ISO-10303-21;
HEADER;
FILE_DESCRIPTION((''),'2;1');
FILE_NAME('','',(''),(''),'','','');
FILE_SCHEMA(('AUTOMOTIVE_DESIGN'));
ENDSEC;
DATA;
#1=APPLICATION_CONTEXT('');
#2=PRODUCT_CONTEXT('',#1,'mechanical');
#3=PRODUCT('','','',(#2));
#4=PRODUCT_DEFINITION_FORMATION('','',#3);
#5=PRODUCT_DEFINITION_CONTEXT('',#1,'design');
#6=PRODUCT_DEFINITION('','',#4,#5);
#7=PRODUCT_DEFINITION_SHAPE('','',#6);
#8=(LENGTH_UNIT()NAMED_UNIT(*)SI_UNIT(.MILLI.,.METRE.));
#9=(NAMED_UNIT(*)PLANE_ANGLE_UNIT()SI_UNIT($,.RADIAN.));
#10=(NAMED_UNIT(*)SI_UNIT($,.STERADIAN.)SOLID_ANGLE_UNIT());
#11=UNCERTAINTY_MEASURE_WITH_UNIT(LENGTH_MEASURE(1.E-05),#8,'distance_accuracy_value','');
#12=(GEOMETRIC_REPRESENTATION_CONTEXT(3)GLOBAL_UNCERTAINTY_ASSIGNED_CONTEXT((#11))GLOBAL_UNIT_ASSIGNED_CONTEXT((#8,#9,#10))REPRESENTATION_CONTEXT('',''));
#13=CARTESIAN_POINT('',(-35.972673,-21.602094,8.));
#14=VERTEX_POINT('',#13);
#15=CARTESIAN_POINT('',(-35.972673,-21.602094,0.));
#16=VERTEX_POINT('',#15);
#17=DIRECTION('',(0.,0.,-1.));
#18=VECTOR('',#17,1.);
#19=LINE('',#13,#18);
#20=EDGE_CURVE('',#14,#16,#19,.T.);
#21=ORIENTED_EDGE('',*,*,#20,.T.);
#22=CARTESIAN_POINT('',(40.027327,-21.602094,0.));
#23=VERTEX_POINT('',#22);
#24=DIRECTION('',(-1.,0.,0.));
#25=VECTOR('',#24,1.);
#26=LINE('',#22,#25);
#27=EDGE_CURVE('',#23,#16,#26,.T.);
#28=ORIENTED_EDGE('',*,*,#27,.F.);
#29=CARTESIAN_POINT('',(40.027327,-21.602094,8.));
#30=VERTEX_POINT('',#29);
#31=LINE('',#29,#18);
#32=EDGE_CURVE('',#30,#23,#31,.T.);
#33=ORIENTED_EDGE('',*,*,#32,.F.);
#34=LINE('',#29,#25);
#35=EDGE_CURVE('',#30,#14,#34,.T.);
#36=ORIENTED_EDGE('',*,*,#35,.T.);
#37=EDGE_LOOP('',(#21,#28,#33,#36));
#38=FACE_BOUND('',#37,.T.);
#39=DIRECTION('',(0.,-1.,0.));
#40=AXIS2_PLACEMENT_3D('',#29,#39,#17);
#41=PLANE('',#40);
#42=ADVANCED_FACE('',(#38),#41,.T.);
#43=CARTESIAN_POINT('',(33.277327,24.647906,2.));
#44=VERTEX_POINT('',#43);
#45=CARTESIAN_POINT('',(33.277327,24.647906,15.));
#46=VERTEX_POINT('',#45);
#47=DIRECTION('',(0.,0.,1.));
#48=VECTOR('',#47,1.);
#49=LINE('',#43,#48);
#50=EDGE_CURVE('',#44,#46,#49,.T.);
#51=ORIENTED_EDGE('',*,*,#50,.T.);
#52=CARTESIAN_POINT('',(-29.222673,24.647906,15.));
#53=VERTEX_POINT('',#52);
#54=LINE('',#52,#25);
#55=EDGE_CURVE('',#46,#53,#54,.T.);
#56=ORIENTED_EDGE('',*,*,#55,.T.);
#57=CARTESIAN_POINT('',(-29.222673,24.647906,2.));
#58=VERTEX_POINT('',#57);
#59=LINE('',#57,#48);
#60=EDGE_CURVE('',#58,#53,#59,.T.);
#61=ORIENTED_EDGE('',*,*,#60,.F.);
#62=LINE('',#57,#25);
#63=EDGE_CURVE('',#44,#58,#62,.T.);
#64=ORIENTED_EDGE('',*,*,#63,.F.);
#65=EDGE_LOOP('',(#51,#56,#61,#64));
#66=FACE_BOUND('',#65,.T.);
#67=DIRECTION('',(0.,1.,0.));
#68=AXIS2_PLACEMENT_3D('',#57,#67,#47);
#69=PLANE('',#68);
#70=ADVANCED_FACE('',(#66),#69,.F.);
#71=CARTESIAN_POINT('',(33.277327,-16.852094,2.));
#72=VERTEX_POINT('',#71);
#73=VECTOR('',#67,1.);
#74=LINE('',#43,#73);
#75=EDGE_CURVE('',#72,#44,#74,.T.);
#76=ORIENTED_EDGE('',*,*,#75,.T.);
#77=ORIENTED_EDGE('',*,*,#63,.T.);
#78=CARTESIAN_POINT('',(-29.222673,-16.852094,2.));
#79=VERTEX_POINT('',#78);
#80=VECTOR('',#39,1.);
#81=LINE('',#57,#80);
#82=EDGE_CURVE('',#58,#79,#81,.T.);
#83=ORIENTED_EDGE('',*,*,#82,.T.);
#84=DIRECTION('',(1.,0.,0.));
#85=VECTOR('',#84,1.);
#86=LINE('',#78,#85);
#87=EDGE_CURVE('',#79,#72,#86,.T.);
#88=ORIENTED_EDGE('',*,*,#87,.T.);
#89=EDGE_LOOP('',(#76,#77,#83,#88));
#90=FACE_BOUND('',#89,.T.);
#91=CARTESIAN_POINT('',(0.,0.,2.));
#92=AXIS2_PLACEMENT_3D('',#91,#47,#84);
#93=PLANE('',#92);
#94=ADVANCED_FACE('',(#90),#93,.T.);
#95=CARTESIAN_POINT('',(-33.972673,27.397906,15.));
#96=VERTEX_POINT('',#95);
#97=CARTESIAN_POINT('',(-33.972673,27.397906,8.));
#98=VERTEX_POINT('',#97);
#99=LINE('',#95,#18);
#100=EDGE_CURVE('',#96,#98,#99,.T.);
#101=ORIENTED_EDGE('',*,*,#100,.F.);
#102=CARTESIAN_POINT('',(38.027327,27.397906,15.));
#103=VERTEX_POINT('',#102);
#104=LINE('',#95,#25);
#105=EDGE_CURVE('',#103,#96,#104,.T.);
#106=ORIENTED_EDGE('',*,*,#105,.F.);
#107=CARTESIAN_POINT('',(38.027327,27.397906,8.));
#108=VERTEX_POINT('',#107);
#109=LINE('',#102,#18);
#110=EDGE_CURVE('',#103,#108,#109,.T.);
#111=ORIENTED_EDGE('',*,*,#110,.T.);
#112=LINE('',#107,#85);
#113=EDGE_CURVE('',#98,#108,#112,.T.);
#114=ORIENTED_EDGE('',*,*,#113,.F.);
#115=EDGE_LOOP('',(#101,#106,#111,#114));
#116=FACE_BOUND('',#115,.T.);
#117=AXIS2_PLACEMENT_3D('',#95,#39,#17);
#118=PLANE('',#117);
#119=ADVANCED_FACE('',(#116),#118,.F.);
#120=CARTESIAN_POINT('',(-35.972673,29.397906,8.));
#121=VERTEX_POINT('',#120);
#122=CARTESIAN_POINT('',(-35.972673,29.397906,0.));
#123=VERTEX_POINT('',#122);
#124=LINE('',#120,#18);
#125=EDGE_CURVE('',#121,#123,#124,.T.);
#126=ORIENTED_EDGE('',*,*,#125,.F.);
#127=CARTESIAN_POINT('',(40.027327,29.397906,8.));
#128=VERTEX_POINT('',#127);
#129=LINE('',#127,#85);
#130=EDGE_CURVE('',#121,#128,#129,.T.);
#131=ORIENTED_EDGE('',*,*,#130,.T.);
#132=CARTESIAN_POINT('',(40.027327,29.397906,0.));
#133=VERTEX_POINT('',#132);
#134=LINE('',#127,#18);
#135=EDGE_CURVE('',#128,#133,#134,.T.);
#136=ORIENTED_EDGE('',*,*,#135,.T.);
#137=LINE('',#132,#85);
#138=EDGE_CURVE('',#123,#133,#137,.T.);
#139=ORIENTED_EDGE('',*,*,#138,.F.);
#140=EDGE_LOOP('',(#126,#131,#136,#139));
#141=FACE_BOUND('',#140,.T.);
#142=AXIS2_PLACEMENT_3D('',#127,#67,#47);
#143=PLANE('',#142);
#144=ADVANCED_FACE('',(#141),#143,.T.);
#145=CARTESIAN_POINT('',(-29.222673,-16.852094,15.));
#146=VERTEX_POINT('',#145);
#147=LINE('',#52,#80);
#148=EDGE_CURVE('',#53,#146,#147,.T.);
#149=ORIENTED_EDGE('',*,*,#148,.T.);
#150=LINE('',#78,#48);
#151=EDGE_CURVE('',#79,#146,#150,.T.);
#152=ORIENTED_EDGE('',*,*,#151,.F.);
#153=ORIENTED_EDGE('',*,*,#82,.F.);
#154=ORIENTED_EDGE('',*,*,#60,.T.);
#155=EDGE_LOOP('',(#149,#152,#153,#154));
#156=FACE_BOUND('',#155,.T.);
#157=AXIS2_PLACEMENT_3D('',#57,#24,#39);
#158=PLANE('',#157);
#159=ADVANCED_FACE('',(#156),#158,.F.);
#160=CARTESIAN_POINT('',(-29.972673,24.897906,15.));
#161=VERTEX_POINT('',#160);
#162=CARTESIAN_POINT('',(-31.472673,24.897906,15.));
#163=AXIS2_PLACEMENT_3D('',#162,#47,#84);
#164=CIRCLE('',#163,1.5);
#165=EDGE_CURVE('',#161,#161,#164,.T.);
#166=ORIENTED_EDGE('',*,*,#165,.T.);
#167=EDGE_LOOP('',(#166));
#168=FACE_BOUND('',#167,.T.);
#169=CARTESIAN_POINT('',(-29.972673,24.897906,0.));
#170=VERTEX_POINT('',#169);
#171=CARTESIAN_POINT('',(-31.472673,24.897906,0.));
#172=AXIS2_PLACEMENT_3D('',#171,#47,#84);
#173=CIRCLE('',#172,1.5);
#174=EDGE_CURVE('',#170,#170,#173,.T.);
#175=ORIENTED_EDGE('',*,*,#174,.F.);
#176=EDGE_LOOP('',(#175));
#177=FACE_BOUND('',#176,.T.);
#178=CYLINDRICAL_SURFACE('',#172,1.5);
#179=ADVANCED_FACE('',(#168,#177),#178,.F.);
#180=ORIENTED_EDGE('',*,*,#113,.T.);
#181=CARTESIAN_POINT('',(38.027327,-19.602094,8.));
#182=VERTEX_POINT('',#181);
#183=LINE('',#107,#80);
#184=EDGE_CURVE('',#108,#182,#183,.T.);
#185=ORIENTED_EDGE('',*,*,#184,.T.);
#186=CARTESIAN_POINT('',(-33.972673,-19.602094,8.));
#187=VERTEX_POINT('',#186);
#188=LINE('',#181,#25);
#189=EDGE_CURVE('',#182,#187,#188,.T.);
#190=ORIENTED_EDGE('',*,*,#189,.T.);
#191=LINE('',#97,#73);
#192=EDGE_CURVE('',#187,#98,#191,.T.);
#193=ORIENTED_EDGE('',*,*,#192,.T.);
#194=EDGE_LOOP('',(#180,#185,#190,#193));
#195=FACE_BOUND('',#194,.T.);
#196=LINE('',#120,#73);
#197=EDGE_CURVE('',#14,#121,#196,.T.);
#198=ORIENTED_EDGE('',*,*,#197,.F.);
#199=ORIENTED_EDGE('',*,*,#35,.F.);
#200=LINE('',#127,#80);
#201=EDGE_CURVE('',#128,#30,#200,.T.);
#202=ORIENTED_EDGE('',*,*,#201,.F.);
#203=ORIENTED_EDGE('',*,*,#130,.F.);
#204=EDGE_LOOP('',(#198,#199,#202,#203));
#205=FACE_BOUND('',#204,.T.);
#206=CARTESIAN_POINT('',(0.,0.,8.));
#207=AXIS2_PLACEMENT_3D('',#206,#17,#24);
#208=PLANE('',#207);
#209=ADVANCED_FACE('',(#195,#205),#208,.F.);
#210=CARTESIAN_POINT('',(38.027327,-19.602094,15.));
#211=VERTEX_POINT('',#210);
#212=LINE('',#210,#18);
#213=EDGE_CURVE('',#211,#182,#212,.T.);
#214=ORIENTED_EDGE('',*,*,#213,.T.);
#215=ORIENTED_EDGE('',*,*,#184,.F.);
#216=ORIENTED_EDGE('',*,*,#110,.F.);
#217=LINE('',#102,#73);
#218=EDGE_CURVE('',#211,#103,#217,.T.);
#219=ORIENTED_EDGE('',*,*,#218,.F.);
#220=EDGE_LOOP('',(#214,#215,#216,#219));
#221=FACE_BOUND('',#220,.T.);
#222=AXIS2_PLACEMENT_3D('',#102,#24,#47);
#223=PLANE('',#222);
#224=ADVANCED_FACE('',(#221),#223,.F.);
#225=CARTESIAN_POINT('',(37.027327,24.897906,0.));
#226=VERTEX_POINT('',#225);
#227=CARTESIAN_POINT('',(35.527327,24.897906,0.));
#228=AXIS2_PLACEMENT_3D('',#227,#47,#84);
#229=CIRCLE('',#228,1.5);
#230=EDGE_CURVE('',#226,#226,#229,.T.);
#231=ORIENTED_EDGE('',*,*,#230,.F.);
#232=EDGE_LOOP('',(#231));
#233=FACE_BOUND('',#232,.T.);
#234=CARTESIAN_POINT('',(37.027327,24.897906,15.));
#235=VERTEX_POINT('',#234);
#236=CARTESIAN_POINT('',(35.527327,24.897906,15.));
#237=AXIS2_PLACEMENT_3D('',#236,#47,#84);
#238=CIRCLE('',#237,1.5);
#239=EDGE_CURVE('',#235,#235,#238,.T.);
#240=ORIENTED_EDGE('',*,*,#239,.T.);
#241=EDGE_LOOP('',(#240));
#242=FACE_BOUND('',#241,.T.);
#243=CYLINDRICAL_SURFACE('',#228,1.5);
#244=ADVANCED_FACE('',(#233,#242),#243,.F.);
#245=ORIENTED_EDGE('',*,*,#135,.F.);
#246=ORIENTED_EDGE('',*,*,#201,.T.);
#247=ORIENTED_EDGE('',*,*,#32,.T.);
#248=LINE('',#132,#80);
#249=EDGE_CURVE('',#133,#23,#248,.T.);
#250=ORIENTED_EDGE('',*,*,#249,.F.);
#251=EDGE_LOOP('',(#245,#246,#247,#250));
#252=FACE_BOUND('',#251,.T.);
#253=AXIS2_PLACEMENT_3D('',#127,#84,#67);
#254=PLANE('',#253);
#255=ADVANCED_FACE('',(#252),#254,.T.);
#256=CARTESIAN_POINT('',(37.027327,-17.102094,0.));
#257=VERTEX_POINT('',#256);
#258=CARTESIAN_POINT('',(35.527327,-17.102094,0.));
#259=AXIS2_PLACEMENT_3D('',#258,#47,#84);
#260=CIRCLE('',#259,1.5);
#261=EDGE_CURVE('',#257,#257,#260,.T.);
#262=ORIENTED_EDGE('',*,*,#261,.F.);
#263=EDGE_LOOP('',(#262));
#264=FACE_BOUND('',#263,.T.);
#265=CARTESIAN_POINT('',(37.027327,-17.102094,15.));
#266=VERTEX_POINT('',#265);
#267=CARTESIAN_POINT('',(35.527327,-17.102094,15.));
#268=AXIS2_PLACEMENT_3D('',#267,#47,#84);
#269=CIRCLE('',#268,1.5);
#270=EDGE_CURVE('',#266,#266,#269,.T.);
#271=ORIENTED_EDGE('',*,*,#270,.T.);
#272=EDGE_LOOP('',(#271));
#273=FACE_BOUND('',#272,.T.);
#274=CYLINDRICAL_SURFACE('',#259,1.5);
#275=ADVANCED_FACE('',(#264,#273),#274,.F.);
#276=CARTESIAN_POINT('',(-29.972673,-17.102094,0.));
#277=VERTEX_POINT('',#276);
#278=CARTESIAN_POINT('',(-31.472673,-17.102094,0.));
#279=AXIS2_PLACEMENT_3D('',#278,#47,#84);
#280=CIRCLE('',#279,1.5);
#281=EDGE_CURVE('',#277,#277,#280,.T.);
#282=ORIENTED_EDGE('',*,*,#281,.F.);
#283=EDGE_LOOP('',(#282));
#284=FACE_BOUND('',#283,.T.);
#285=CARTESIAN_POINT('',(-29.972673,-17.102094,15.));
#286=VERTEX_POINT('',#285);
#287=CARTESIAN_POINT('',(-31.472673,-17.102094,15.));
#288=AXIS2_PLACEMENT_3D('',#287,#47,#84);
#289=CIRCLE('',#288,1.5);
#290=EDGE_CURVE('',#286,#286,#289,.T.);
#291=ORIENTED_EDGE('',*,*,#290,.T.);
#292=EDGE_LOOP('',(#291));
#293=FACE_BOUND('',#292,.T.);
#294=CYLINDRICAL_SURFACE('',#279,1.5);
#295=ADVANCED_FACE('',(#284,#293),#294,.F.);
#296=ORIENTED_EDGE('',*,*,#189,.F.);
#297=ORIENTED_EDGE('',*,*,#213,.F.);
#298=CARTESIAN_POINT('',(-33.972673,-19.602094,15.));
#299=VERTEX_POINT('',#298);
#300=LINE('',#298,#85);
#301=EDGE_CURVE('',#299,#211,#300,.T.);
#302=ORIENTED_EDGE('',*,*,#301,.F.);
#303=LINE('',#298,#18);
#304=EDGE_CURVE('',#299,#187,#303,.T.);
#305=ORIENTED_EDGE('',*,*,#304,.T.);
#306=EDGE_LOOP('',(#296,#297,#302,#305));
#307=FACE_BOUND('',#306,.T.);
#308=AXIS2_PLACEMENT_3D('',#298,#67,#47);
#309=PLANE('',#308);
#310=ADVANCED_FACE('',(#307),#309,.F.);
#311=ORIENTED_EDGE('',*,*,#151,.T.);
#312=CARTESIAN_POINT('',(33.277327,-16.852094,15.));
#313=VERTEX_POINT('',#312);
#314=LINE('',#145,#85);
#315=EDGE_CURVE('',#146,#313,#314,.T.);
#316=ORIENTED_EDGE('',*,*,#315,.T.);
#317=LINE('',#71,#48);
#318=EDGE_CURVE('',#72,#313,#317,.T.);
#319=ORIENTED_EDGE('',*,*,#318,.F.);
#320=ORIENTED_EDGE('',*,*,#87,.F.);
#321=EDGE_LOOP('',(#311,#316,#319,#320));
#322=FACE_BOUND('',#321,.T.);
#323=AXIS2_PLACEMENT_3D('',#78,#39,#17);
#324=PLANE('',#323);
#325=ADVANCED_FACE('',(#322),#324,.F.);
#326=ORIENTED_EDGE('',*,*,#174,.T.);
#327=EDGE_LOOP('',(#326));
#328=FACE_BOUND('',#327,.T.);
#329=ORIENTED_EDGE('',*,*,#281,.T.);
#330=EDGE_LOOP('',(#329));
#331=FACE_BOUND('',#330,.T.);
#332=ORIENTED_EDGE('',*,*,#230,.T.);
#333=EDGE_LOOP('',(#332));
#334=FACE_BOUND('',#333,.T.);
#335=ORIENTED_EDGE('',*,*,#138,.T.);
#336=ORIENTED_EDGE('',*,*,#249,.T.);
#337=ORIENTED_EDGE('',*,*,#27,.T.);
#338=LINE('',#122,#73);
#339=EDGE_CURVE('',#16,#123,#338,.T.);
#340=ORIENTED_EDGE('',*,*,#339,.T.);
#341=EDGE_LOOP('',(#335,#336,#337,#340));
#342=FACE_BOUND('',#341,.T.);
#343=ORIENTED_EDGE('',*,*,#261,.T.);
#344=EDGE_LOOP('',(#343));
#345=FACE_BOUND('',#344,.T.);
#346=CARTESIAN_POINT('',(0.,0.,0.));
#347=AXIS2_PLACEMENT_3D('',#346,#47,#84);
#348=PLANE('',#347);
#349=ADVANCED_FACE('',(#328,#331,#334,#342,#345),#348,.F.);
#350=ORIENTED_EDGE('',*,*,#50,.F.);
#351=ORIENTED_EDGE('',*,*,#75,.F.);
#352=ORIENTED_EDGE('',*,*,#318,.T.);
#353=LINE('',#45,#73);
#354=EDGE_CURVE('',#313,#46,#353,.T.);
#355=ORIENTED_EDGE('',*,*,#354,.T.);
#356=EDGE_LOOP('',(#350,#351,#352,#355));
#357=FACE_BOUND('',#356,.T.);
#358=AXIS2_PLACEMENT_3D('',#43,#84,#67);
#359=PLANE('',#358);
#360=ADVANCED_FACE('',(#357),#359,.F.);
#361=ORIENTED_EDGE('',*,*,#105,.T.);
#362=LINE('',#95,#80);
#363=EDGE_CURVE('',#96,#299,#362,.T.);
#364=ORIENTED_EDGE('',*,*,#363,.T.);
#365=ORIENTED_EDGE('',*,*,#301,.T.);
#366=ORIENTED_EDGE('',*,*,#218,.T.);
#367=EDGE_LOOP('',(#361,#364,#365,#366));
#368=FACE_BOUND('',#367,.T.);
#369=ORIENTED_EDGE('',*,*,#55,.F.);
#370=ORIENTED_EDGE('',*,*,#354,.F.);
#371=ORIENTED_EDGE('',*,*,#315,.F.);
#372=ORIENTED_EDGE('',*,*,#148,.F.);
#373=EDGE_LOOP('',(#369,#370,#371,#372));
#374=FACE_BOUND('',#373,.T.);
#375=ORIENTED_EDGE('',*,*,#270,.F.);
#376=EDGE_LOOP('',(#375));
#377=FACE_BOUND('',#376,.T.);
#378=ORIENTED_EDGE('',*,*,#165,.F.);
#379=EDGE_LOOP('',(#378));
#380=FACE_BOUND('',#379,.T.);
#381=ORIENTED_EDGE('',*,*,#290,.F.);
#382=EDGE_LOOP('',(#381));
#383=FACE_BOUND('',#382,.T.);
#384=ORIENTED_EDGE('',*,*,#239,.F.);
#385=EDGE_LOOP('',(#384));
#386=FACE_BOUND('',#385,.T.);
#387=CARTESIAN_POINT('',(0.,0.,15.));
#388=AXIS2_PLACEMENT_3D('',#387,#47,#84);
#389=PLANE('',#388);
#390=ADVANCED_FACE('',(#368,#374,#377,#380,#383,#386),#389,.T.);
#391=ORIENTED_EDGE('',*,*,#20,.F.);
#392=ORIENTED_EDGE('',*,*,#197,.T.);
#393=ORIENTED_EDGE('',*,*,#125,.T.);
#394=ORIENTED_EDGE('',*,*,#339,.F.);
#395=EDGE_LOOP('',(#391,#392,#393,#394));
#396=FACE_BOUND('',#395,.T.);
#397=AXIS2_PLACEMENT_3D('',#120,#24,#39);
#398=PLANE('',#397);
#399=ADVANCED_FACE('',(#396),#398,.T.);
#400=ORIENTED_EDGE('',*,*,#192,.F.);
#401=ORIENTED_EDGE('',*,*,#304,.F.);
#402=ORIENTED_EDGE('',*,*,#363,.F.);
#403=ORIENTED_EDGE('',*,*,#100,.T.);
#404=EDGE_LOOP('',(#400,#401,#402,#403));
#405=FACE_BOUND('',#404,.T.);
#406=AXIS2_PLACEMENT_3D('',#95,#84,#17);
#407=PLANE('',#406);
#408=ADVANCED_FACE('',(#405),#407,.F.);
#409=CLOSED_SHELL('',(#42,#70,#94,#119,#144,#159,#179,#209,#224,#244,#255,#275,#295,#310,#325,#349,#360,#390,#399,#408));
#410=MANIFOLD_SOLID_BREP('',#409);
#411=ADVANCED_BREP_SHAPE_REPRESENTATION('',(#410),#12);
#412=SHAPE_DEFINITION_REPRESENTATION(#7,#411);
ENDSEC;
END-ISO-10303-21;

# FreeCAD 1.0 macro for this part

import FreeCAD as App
import Part
import Sketcher


def add_polygon(sketch, points):
    """Adds a closed chain of lines whose ends are joined by coincident constraints."""
    first, n = sketch.GeometryCount, len(points)
    for a, b in zip(points, points[1:] + points[:1]):
        sketch.addGeometry(Part.LineSegment(App.Vector(*a, 0), App.Vector(*b, 0)), False)
    for i in range(n):
        sketch.addConstraint(Sketcher.Constraint("Coincident", first + i, 2, first + (i + 1) % n, 1))

doc = App.newDocument("Part")
body = doc.addObject("PartDesign::Body", "Body")

sketch1 = body.newObject("Sketcher::SketchObject", "Sketch")
sketch1.AttachmentSupport = (doc.getObject("XY_Plane"), [""])
sketch1.MapMode = "FlatFace"
add_polygon(sketch1, [(-34, 27), (-34, -20), (38, -20), (38, 27)])
sketch1.addConstraint([
    Sketcher.Constraint("Vertical", 0),
    Sketcher.Constraint("Horizontal", 1),
    Sketcher.Constraint("Vertical", 2),
    Sketcher.Constraint("Horizontal", 3),
    Sketcher.Constraint("DistanceX", 1, 1, 1, 2, 72.0),
    Sketcher.Constraint("DistanceY", 0, 2, 0, 1, 47.0),
    Sketcher.Constraint("DistanceX", 0, 2, -1, 1, 33.972673),
    Sketcher.Constraint("DistanceY", 0, 2, -1, 1, 19.602094),
])
pad1 = body.newObject("PartDesign::Pad", "Pad")
pad1.Profile = sketch1
pad1.Length = 15

sketch2 = body.newObject("Sketcher::SketchObject", "Sketch001")
sketch2.AttachmentSupport = (doc.getObject("XY_Plane"), [""])
sketch2.MapMode = "FlatFace"
sketch2.AttachmentOffset = App.Placement(App.Vector(0, 0, 15), App.Rotation())
add_polygon(sketch2, [(-29, 25), (-29, -17), (33, -17), (33, 25)])
sketch2.addConstraint([
    Sketcher.Constraint("Vertical", 0),
    Sketcher.Constraint("Horizontal", 1),
    Sketcher.Constraint("Vertical", 2),
    Sketcher.Constraint("Horizontal", 3),
    Sketcher.Constraint("DistanceX", 1, 1, 1, 2, 62.5),
    Sketcher.Constraint("DistanceY", 0, 2, 0, 1, 41.5),
    Sketcher.Constraint("DistanceX", 0, 2, -1, 1, 29.222673),
    Sketcher.Constraint("DistanceY", 0, 2, -1, 1, 16.852094),
])
pocket1 = body.newObject("PartDesign::Pocket", "Pocket")
pocket1.Profile = sketch2
pocket1.Length = 13

sketch3 = body.newObject("Sketcher::SketchObject", "Sketch002")
sketch3.AttachmentSupport = (doc.getObject("XY_Plane"), [""])
sketch3.MapMode = "FlatFace"
sketch3.AttachmentOffset = App.Placement(App.Vector(0, 0, 15), App.Rotation())
sketch3.addGeometry([
    Part.Circle(App.Vector(-31.5, 24.9, 0), App.Vector(0, 0, 1), 1.5),
    Part.Circle(App.Vector(35.5, 24.9, 0), App.Vector(0, 0, 1), 1.5),
    Part.Circle(App.Vector(-31.5, -17.1, 0), App.Vector(0, 0, 1), 1.5),
    Part.Circle(App.Vector(35.5, -17.1, 0), App.Vector(0, 0, 1), 1.5),
], False)
sketch3.addConstraint([
    Sketcher.Constraint("Equal", 0, 1),
    Sketcher.Constraint("Equal", 1, 2),
    Sketcher.Constraint("Equal", 2, 3),
    Sketcher.Constraint("Horizontal", 0, 3, 1, 3),
    Sketcher.Constraint("Horizontal", 2, 3, 3, 3),
    Sketcher.Constraint("Vertical", 0, 3, 2, 3),
    Sketcher.Constraint("Vertical", 1, 3, 3, 3),
    Sketcher.Constraint("Diameter", 0, 3.0),
    Sketcher.Constraint("DistanceX", 0, 3, 1, 3, 67.0),
    Sketcher.Constraint("DistanceY", 2, 3, 0, 3, 42.0),
    Sketcher.Constraint("DistanceX", 0, 3, -1, 1, 31.472673),
    Sketcher.Constraint("DistanceY", -1, 1, 0, 3, 24.897906),
])
pocket2 = body.newObject("PartDesign::Pocket", "Pocket001")
pocket2.Profile = sketch3
pocket2.Type = "ThroughAll"

sketch4 = body.newObject("Sketcher::SketchObject", "Sketch003")
sketch4.AttachmentSupport = (doc.getObject("XY_Plane"), [""])
sketch4.MapMode = "FlatFace"
add_polygon(sketch4, [(40, 29), (40, -22), (-36, -22), (-36, 29)])
add_polygon(sketch4, [(-34, -20), (38, -20), (38, 27), (-34, 27)])
sketch4.addConstraint([
    Sketcher.Constraint("Vertical", 0),
    Sketcher.Constraint("Horizontal", 1),
    Sketcher.Constraint("Vertical", 2),
    Sketcher.Constraint("Horizontal", 3),
    Sketcher.Constraint("Horizontal", 4),
    Sketcher.Constraint("Vertical", 5),
    Sketcher.Constraint("Horizontal", 6),
    Sketcher.Constraint("Vertical", 7),
    Sketcher.Constraint("DistanceX", 1, 2, 1, 1, 76.0),
    Sketcher.Constraint("DistanceX", 4, 1, 4, 2, 72.0),
    Sketcher.Constraint("DistanceY", 0, 2, 0, 1, 51.0),
    Sketcher.Constraint("DistanceY", 5, 1, 5, 2, 47.0),
    Sketcher.Constraint("DistanceX", 4, 2, 0, 2, 2.0),
    Sketcher.Constraint("DistanceY", 0, 2, 4, 2, 2.0),
    Sketcher.Constraint("DistanceX", -1, 1, 0, 2, 40.027327),
    Sketcher.Constraint("DistanceY", 0, 2, -1, 1, 21.602094),
])
pad2 = body.newObject("PartDesign::Pad", "Pad001")
pad2.Profile = sketch4
pad2.Length = 8

doc.recompute()
